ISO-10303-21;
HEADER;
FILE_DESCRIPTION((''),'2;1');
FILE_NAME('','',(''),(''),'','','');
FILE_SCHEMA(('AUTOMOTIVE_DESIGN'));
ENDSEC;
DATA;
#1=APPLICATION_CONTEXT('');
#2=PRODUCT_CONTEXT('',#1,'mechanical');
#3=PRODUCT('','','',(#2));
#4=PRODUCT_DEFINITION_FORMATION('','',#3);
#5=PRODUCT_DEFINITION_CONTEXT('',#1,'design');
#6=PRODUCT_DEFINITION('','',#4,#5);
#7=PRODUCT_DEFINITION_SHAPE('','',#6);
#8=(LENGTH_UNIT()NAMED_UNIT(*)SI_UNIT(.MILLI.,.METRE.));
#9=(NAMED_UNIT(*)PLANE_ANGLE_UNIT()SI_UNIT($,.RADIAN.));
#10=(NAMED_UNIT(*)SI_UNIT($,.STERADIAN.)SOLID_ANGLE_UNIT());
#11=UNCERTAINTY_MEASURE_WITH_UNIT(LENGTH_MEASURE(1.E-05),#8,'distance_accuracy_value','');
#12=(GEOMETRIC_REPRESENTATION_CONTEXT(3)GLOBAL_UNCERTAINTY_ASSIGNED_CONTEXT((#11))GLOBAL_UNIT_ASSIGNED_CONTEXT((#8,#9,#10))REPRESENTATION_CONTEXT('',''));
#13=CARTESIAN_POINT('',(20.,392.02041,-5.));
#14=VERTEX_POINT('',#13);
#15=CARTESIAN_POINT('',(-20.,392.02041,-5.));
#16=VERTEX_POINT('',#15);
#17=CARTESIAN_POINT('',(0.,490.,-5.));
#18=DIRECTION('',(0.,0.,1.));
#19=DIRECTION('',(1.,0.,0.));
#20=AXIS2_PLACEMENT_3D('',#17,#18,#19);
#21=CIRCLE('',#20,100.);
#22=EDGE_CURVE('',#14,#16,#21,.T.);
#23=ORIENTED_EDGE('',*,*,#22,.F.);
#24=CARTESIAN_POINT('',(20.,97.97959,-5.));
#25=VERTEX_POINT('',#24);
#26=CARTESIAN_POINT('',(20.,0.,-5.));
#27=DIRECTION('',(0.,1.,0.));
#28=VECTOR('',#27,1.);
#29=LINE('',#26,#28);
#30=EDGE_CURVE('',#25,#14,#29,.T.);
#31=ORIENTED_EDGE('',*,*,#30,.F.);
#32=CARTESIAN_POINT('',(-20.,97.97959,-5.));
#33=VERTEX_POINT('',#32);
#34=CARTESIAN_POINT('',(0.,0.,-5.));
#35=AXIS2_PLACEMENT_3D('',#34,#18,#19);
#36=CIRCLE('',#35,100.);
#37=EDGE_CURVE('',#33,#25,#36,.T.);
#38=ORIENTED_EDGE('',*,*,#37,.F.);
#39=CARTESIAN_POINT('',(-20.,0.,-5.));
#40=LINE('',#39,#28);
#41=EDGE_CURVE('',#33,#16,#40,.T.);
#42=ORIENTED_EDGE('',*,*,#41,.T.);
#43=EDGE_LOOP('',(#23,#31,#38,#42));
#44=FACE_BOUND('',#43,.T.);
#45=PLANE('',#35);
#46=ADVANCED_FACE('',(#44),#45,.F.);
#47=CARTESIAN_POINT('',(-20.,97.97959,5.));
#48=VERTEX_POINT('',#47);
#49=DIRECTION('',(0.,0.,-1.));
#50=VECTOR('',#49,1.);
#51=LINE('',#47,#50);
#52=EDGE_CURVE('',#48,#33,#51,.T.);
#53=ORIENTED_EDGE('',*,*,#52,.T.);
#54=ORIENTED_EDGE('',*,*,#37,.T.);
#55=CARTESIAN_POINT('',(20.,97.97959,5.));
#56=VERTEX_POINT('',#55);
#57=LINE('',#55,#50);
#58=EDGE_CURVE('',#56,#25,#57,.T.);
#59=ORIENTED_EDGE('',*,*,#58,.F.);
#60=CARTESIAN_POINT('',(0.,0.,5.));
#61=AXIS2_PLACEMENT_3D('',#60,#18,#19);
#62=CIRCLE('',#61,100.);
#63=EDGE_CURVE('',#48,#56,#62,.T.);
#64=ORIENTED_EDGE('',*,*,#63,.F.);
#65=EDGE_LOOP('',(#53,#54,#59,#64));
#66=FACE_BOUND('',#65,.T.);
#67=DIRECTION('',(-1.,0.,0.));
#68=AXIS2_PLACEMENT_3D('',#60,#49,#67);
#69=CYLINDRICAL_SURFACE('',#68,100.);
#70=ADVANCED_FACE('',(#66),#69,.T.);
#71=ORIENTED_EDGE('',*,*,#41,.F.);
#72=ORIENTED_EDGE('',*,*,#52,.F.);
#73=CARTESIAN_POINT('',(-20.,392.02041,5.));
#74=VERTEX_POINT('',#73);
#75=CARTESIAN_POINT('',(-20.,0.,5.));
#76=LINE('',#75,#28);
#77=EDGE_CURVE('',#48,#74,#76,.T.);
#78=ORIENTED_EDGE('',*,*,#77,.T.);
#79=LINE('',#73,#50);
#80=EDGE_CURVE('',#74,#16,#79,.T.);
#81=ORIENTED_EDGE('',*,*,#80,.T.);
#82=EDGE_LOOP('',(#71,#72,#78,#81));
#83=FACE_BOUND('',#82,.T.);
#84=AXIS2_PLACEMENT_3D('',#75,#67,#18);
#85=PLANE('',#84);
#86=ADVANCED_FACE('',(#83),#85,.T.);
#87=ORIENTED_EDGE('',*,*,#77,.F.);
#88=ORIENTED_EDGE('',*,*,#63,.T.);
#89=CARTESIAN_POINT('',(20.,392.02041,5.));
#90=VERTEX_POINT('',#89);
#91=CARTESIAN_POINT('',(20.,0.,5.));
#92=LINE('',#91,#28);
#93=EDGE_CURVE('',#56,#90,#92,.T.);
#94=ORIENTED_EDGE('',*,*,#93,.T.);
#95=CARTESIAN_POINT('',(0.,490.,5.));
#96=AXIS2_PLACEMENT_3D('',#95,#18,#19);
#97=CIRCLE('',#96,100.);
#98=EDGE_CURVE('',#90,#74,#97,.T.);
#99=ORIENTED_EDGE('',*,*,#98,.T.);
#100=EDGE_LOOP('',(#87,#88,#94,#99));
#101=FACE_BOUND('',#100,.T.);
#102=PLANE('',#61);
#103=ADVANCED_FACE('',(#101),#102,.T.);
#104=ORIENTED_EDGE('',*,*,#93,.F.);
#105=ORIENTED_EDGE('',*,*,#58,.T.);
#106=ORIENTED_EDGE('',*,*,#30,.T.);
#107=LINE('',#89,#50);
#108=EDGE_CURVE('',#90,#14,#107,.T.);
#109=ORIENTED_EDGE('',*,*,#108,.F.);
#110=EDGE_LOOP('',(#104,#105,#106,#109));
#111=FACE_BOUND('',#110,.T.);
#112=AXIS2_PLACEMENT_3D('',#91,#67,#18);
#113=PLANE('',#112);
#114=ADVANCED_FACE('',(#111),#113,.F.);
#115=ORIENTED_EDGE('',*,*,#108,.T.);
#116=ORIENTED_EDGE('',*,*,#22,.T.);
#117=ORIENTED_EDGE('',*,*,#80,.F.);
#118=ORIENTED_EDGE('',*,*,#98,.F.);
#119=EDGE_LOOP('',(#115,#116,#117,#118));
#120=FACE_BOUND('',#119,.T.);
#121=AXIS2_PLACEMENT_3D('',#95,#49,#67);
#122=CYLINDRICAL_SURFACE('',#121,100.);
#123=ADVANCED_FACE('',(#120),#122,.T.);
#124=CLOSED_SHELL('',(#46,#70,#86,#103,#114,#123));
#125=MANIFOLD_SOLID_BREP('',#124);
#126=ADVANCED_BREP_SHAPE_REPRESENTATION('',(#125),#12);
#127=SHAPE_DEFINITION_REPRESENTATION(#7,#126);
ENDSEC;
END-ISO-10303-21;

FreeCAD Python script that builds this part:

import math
import FreeCAD as App
import Part
import Sketcher
from FreeCAD import Vector
Q = App.Units.Quantity

doc = App.newDocument("Part")
body = doc.addObject("PartDesign::Body", "Body")

# Sketch on XY plane
sketch1 = doc.addObject("Sketcher::SketchObject", "Sketch")
body.addObject(sketch1)
sketch1.AttachmentSupport = (doc.XY_Plane, [""])
sketch1.MapMode = "FlatFace"
sketch1.addGeometry(Part.ArcOfCircle(Part.Circle(Vector(0, 0, 0), Vector(0, 0, 1), 100), math.radians(102), math.radians(438)), False)
sketch1.addGeometry(Part.LineSegment(Vector(20, 98, 0), Vector(20, 392, 0)), False)
sketch1.addGeometry(Part.ArcOfCircle(Part.Circle(Vector(0, 490, 0), Vector(0, 0, 1), 100), math.radians(-78), math.radians(258)), False)
sketch1.addGeometry(Part.LineSegment(Vector(-20, 392, 0), Vector(-20, 98, 0)), False)
sketch1.addConstraint(Sketcher.Constraint("Coincident", 0, 2, 1, 1))
sketch1.addConstraint(Sketcher.Constraint("Coincident", 1, 2, 2, 1))
sketch1.addConstraint(Sketcher.Constraint("Coincident", 2, 2, 3, 1))
sketch1.addConstraint(Sketcher.Constraint("Coincident", 3, 2, 0, 1))
sketch1.addConstraint(Sketcher.Constraint("Vertical", 1))
sketch1.addConstraint(Sketcher.Constraint("Vertical", 3))
sketch1.addConstraint(Sketcher.Constraint("Coincident", 0, 3, -1, 1))
sketch1.addConstraint(Sketcher.Constraint("Equal", 0, 2))
sketch1.addConstraint(Sketcher.Constraint("Symmetric", 1, 2, 2, 2, -2))
sketch1.addConstraint(Sketcher.Constraint("Radius", 0, Q("100 mm")))
sketch1.addConstraint(Sketcher.Constraint("DistanceY", -1, 1, 2, 3, Q("490 mm")))
sketch1.addConstraint(Sketcher.Constraint("DistanceX", -1, 1, 0, 2, Q("20 mm")))
pad1 = doc.addObject("PartDesign::Pad", "Pad")
body.addObject(pad1)
pad1.Profile = sketch1
pad1.Length = 10
pad1.Midplane = True

doc.recompute()
